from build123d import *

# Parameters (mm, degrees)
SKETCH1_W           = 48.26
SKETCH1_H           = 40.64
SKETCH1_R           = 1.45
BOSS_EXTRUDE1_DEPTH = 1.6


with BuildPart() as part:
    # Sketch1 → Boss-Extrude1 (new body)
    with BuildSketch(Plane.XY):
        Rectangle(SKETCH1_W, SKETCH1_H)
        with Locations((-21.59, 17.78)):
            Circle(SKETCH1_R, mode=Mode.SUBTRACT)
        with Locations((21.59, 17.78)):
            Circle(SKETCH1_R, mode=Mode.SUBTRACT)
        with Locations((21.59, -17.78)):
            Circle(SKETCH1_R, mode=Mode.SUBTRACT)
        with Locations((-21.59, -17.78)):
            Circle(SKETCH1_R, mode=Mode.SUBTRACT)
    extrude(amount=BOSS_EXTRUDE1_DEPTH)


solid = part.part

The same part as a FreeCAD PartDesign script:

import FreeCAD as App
import Part
import Sketcher
Q = App.Units.Quantity

doc = App.newDocument("Part")
params = doc.addObject("Spreadsheet::Sheet", "Params")
for row, (alias, value) in enumerate([
    ("sketch1_diameter", "2.9 mm"),
    ("sketch1_width", "48.26 mm"),
    ("sketch1_height", "40.64 mm"),
    ("pad1_length", "1.6 mm"),
], start=1):
    params.set(f"A{row}", alias)
    params.set(f"B{row}", "=" + value)
    params.setAlias(f"B{row}", alias)

body = doc.addObject("PartDesign::Body", "Body")

sketch1 = body.newObject("Sketcher::SketchObject", "Sketch")
sketch1.AttachmentSupport = (doc.getObject("XY_Plane"), [""])
sketch1.MapMode = "FlatFace"
sketch1.addGeometry([
    Part.LineSegment(App.Vector(-24.1, 20.3, 0), App.Vector(-24.1, -20.3, 0)),
    Part.LineSegment(App.Vector(-24.1, -20.3, 0), App.Vector(24.1, -20.3, 0)),
    Part.LineSegment(App.Vector(24.1, -20.3, 0), App.Vector(24.1, 20.3, 0)),
    Part.LineSegment(App.Vector(24.1, 20.3, 0), App.Vector(-24.1, 20.3, 0)),
    Part.Circle(App.Vector(-21.6, -17.8, 0), App.Vector(0, 0, 1), 1.4),
    Part.Circle(App.Vector(21.6, -17.8, 0), App.Vector(0, 0, 1), 1.4),
    Part.Circle(App.Vector(-21.6, 17.8, 0), App.Vector(0, 0, 1), 1.4),
    Part.Circle(App.Vector(21.6, 17.8, 0), App.Vector(0, 0, 1), 1.4),
], False)
sketch1.addConstraint([
    Sketcher.Constraint("Coincident", 0, 2, 1, 1),
    Sketcher.Constraint("Coincident", 1, 2, 2, 1),
    Sketcher.Constraint("Coincident", 2, 2, 3, 1),
    Sketcher.Constraint("Coincident", 3, 2, 0, 1),
    Sketcher.Constraint("Vertical", 0),
    Sketcher.Constraint("Horizontal", 1),
    Sketcher.Constraint("Vertical", 2),
    Sketcher.Constraint("Horizontal", 3),
    Sketcher.Constraint("Equal", 4, 5),
    Sketcher.Constraint("Equal", 5, 6),
    Sketcher.Constraint("Equal", 6, 7),
    Sketcher.Constraint("Symmetric", 5, 3, 6, 3, -1, 1),
    Sketcher.Constraint("Symmetric", 4, 3, 7, 3, -1, 1),
    Sketcher.Constraint("Symmetric", 0, 2, 2, 2, -1, 1),
    Sketcher.Constraint("Symmetric", 4, 3, 5, 3, -2),
    Sketcher.Constraint("Diameter", 4, Q("2.9 mm")),
    Sketcher.Constraint("DistanceX", 1, 1, 1, 2, Q("48.26 mm")),
    Sketcher.Constraint("DistanceY", 0, 2, 0, 1, Q("40.64 mm")),
    Sketcher.Constraint("DistanceY", 0, 2, 6, 3, Q("38.1 mm")),
    Sketcher.Constraint("DistanceX", 4, 3, -1, 1, Q("21.59 mm")),
])
sketch1.setExpression("Constraints[15]", "Params.sketch1_diameter")
sketch1.setExpression("Constraints[16]", "Params.sketch1_width")
sketch1.setExpression("Constraints[17]", "Params.sketch1_height")
pad1 = body.newObject("PartDesign::Pad", "Pad")
pad1.Profile = sketch1
pad1.setExpression("Length", "Params.pad1_length")

doc.recompute()
